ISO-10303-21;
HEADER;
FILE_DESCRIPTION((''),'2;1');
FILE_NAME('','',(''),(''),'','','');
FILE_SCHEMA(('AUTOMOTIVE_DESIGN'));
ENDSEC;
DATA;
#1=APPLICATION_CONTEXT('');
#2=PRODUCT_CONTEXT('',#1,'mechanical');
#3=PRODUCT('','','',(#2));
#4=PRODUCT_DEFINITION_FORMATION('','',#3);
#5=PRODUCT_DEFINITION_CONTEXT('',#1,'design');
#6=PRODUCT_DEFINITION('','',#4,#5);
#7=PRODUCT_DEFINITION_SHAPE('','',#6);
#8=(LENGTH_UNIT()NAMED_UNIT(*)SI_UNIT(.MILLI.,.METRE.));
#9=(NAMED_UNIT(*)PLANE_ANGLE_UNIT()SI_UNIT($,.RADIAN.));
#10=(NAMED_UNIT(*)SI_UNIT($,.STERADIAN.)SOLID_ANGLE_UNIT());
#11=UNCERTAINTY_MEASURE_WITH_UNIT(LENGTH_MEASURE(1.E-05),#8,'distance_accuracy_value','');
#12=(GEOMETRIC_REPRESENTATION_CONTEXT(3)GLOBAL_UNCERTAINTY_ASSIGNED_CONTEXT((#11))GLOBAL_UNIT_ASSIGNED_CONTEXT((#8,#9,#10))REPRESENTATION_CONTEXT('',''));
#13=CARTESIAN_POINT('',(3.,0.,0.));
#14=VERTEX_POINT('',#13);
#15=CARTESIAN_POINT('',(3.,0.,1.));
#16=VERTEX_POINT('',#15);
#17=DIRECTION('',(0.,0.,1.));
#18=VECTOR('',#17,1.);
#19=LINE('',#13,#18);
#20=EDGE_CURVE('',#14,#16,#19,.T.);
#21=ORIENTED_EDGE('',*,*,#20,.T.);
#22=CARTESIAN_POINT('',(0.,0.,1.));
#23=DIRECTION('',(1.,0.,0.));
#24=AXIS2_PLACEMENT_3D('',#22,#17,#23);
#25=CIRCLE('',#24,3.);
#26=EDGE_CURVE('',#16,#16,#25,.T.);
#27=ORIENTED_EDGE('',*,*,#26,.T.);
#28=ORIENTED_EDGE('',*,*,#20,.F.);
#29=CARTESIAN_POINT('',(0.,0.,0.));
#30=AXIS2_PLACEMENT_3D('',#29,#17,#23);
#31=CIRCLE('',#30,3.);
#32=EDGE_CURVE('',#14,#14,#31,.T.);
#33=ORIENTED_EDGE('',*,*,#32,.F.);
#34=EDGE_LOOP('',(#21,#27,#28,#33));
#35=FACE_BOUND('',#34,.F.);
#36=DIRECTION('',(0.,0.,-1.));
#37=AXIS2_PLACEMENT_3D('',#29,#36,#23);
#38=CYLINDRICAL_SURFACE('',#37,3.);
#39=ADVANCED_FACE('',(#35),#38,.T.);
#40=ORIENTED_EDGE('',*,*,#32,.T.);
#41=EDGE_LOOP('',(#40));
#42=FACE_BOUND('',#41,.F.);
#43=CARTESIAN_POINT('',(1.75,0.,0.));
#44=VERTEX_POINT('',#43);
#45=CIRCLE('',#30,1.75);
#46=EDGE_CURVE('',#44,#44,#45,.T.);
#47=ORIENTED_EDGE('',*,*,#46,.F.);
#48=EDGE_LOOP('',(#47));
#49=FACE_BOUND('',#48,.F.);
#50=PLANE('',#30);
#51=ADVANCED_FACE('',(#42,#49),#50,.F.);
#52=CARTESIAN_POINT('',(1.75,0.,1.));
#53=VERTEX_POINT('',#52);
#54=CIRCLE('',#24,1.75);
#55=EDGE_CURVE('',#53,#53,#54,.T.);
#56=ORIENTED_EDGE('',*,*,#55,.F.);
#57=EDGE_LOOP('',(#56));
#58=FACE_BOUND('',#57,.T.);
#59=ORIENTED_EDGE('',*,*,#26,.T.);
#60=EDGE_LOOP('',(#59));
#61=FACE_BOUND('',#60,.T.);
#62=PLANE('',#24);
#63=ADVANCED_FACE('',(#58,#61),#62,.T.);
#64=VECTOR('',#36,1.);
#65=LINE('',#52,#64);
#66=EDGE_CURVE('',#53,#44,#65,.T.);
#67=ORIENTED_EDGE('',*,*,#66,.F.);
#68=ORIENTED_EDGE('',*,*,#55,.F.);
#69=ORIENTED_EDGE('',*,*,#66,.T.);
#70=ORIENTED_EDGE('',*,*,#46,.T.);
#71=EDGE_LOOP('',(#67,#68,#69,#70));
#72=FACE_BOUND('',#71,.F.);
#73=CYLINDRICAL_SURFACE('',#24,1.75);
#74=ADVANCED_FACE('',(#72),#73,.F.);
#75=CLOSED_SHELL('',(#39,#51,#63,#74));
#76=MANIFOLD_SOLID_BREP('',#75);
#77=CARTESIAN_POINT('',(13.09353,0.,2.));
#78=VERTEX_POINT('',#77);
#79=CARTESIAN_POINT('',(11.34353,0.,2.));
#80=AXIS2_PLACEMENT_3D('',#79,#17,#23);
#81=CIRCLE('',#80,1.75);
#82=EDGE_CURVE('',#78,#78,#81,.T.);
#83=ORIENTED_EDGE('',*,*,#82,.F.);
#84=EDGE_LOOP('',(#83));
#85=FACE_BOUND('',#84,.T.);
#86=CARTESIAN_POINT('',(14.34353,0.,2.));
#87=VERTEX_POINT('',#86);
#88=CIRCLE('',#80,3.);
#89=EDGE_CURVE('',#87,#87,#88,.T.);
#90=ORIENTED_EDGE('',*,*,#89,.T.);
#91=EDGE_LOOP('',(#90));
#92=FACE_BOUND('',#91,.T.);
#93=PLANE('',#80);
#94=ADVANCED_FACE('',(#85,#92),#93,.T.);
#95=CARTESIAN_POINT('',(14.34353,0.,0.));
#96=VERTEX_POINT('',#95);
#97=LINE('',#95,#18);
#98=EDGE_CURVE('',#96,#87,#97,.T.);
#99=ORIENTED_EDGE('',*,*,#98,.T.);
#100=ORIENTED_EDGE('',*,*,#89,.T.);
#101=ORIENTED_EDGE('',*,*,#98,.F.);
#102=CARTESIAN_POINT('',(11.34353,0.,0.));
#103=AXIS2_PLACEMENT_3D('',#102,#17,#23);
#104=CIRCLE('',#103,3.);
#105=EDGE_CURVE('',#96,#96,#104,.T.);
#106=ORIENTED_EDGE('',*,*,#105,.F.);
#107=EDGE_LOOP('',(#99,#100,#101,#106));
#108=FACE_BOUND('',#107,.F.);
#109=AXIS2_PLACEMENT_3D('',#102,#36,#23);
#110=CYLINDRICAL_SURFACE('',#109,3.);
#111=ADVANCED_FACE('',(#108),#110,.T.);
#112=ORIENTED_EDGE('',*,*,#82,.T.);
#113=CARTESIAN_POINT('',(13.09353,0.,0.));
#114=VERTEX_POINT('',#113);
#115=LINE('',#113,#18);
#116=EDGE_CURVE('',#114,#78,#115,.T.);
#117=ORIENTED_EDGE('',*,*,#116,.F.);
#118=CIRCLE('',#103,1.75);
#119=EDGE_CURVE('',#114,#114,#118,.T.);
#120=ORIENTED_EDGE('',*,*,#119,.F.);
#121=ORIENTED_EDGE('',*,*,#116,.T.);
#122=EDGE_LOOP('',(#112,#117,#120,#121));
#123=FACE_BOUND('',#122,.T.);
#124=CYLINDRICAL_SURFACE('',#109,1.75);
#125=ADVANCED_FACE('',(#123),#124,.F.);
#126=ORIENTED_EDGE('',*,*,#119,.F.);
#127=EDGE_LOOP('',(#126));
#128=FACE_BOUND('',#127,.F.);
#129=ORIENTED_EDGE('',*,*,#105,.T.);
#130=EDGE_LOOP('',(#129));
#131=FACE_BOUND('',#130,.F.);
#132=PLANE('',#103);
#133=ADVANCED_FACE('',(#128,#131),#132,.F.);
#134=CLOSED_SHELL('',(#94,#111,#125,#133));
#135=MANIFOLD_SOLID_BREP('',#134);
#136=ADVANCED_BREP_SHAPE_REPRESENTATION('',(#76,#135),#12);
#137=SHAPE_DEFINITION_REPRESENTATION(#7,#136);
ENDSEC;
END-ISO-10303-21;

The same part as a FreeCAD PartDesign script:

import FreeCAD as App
import Part
import Sketcher

V = App.Vector
Q = App.Units.Quantity

doc = App.newDocument("Part")
body = doc.addObject("PartDesign::Body", "Body")

sketch1 = body.newObject("Sketcher::SketchObject", "Sketch")
sketch1.AttachmentSupport = (doc.getObject("XY_Plane"), [""])
sketch1.MapMode = "FlatFace"
sketch1.addGeometry(Part.Circle(V(0, 0, 0), V(0, 0, 1), 3), False)
sketch1.addConstraint([
    Sketcher.Constraint("Coincident", 0, 3, -1, 1),
    Sketcher.Constraint("Diameter", 0, Q("6 mm")),
])
pad1 = body.newObject("PartDesign::Pad", "Pad")
pad1.Profile = sketch1
pad1.Length = 1

sketch2 = body.newObject("Sketcher::SketchObject", "Sketch001")
sketch2.AttachmentSupport = (doc.getObject("XY_Plane"), [""])
sketch2.MapMode = "FlatFace"
sketch2.AttachmentOffset = App.Placement(V(0, 0, 1), App.Rotation())
sketch2.addGeometry(Part.Circle(V(0, 0, 0), V(0, 0, 1), 1.75), False)
sketch2.addConstraint([
    Sketcher.Constraint("Coincident", 0, 3, -1, 1),
    Sketcher.Constraint("Diameter", 0, Q("3.5 mm")),
])
pocket1 = body.newObject("PartDesign::Pocket", "Pocket")
pocket1.Profile = sketch2
pocket1.Length = 25
body2 = doc.addObject("PartDesign::Body", "Body001")

sketch3 = body2.newObject("Sketcher::SketchObject", "Sketch002")
sketch3.AttachmentSupport = (doc.getObject("XY_Plane001"), [""])
sketch3.MapMode = "FlatFace"
sketch3.addGeometry([
    Part.Circle(V(11.34353, 0, 0), V(0, 0, 1), 3),
    Part.Circle(V(11.34353, 0, 0), V(0, 0, 1), 1.75),
], False)
sketch3.addConstraint([
    Sketcher.Constraint("Coincident", 1, 3, 0, 3),
    Sketcher.Constraint("PointOnObject", 0, 3, -1),
    Sketcher.Constraint("Diameter", 0, Q("6 mm")),
    Sketcher.Constraint("Diameter", 1, Q("3.5 mm")),
    Sketcher.Constraint("DistanceX", -1, 1, 0, 3, Q("11.34353 mm")),
])
pad2 = body2.newObject("PartDesign::Pad", "Pad001")
pad2.Profile = sketch3
pad2.Length = 2

doc.recompute()
